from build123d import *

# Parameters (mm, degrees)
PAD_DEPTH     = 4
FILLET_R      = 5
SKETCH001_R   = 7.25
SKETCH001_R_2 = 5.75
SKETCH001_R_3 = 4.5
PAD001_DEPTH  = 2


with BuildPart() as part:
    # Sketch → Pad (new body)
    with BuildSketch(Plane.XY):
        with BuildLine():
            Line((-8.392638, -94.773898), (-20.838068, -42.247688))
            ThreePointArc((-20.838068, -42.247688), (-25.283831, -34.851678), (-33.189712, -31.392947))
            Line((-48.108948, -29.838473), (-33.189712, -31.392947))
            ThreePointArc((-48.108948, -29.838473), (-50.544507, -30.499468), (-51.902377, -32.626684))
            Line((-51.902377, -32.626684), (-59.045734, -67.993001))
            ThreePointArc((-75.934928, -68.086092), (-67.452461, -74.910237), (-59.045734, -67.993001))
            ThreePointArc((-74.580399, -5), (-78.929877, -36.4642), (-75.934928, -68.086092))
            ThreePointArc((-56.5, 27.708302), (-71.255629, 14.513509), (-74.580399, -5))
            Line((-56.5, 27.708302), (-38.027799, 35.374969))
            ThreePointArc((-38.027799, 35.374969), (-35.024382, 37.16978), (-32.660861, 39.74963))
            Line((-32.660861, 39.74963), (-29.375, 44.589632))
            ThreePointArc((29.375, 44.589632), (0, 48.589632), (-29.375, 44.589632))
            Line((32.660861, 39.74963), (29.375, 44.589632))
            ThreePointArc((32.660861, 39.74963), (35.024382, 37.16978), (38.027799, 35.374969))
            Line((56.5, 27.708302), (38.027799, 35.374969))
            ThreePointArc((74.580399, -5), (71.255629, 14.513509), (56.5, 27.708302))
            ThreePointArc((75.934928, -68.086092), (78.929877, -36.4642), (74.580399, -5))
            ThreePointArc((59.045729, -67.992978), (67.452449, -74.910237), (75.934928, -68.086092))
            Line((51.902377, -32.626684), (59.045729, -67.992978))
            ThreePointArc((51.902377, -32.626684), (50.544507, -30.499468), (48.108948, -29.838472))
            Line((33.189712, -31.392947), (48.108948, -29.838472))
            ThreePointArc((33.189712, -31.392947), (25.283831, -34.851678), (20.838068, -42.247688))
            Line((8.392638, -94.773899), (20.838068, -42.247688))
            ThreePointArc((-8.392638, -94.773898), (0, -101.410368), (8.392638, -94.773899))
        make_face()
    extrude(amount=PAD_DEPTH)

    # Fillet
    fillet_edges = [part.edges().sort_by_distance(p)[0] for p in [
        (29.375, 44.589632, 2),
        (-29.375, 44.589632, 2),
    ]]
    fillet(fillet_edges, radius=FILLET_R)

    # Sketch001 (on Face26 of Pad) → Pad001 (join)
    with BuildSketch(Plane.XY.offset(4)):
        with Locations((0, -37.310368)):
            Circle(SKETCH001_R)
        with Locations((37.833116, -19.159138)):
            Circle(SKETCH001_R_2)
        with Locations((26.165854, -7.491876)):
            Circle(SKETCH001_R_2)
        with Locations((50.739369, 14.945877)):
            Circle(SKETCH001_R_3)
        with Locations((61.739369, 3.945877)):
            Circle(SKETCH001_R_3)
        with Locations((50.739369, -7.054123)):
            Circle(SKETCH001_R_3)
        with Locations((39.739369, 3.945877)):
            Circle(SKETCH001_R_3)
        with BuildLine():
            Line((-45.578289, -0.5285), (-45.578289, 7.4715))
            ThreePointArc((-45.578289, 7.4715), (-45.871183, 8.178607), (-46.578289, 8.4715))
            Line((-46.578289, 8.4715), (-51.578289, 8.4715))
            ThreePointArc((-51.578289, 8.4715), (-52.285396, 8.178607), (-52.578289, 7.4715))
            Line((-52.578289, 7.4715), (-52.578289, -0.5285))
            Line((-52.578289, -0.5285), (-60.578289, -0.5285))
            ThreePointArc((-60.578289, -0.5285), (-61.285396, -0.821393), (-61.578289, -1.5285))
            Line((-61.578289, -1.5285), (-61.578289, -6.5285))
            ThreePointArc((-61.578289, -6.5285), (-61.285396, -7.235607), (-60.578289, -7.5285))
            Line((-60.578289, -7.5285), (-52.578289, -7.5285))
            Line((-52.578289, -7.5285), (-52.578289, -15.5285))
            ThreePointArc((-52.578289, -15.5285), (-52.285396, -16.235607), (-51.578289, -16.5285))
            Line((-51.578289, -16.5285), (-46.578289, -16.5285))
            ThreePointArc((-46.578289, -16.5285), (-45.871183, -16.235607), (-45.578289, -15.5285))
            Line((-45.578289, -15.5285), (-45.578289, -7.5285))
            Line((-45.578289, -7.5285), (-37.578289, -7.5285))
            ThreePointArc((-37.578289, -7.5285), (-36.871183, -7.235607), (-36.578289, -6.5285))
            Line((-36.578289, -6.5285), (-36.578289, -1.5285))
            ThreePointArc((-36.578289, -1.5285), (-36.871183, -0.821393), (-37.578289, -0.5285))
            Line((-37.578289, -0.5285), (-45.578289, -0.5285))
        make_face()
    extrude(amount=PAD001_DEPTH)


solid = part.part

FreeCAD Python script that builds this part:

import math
import FreeCAD as App
import Part
import Sketcher

V = App.Vector
Q = App.Units.Quantity


def edges_at(feature, points):
    """Names of the edges that pass closest to the given points."""
    edges = feature.Shape.Edges
    near = lambda p: min(range(len(edges)), key=lambda i: edges[i].distToShape(Part.Vertex(*p))[0])
    return sorted({f"Edge{near(p) + 1}" for p in points})

doc = App.newDocument("Part")
body = doc.addObject("PartDesign::Body", "Body")

# Sketch on XY plane
sketch1 = body.newObject("Sketcher::SketchObject", "Sketch")
sketch1.AttachmentSupport = (doc.getObject("XY_Plane"), [""])
sketch1.MapMode = "FlatFace"
sketch1.addGeometry(Part.LineSegment(V(-20.838068, -42.247688, 0), V(-8.392638, -94.773898, 0)), False)
sketch1.addGeometry(Part.ArcOfCircle(Part.Circle(V(0, -92.785368, 0), V(0, 0, 1), 8.625), math.radians(-166.670297), math.radians(-13.329709)), False)
sketch1.addGeometry(Part.LineSegment(V(8.392638, -94.773899, 0), V(20.838068, -42.247688, 0)), False)
sketch1.addGeometry(Part.ArcOfCircle(Part.Circle(V(34.661967, -45.523088, 0), V(0, 0, 1), 14.206633), math.radians(95.948327), math.radians(166.670294)), False)
sketch1.addGeometry(Part.LineSegment(V(33.189712, -31.392947, 0), V(48.108948, -29.838472, 0)), False)
sketch1.addGeometry(Part.ArcOfCircle(Part.Circle(V(48.471658, -33.319628, 0), V(0, 0, 1), 3.500001), math.radians(11.419087), math.radians(95.948323)), False)
sketch1.addGeometry(Part.LineSegment(V(51.902377, -32.626684, 0), V(59.045729, -67.992978, 0)), False)
sketch1.addGeometry(Part.ArcOfCircle(Part.Circle(V(67.5, -66.285368, 0), V(0, 0, 1), 8.625), math.radians(-168.580921), math.radians(-12.050842)), False)
sketch1.addGeometry(Part.ArcOfCircle(Part.Circle(V(-58.378167, -39.412357, 0), V(0, 0, 1), 137.339691), math.radians(-12.050847), math.radians(14.510878)), False)
sketch1.addGeometry(Part.ArcOfCircle(Part.Circle(V(45, 0, 0), V(0, 0, 1), 30), math.radians(-9.594068), math.radians(67.459689)), False)
sketch1.addGeometry(Part.LineSegment(V(56.5, 27.708302, 0), V(38.027799, 35.374969, 0)), False)
sketch1.addGeometry(Part.ArcOfCircle(Part.Circle(V(42.661223, 46.538837, 0), V(0, 0, 1), 12.087207), math.radians(-145.827568), math.radians(-112.540281)), False)
sketch1.addGeometry(Part.LineSegment(V(32.660861, 39.74963, 0), V(29.375, 44.589632, 0)), False)
sketch1.addGeometry(Part.ArcOfCircle(Part.Circle(V(0, -61.271696, 0), V(0, 0, 1), 109.861328), math.radians(74.491429), math.radians(105.508571)), False)
sketch1.addGeometry(Part.LineSegment(V(-29.375, 44.589632, 0), V(-32.660861, 39.74963, 0)), False)
sketch1.addGeometry(Part.ArcOfCircle(Part.Circle(V(-42.661223, 46.538837, 0), V(0, 0, 1), 12.087207), math.radians(-67.459719), math.radians(-34.172432)), False)
sketch1.addGeometry(Part.LineSegment(V(-38.027799, 35.374969, 0), V(-56.5, 27.708302, 0)), False)
sketch1.addGeometry(Part.ArcOfCircle(Part.Circle(V(-45, 0, 0), V(0, 0, 1), 30), math.radians(112.540311), math.radians(189.594068)), False)
sketch1.addGeometry(Part.ArcOfCircle(Part.Circle(V(58.378167, -39.412357, 0), V(0, 0, 1), 137.339691), math.radians(165.489122), math.radians(192.050847)), False)
sketch1.addGeometry(Part.ArcOfCircle(Part.Circle(V(-67.5, -66.285368, 0), V(0, 0, 1), 8.625), math.radians(-167.949159), math.radians(-11.419234)), False)
sketch1.addGeometry(Part.LineSegment(V(-59.045734, -67.993001, 0), V(-51.902377, -32.626684, 0)), False)
sketch1.addGeometry(Part.ArcOfCircle(Part.Circle(V(-48.47166, -33.319627, 0), V(0, 0, 1), 3.499999), math.radians(84.051646), math.radians(168.580925)), False)
sketch1.addGeometry(Part.LineSegment(V(-48.108948, -29.838473, 0), V(-33.189712, -31.392947, 0)), False)
sketch1.addGeometry(Part.ArcOfCircle(Part.Circle(V(-34.661967, -45.523088, 0), V(0, 0, 1), 14.206633), math.radians(13.329706), math.radians(84.051673)), False)
sketch1.addConstraint(Sketcher.Constraint("Coincident", 0, 2, 1, 1))
sketch1.addConstraint(Sketcher.Constraint("Coincident", 1, 2, 2, 1))
sketch1.addConstraint(Sketcher.Constraint("Coincident", 2, 2, 3, 2))
sketch1.addConstraint(Sketcher.Constraint("Coincident", 3, 1, 4, 1))
sketch1.addConstraint(Sketcher.Constraint("Coincident", 4, 2, 5, 2))
sketch1.addConstraint(Sketcher.Constraint("Coincident", 5, 1, 6, 1))
sketch1.addConstraint(Sketcher.Constraint("Coincident", 6, 2, 7, 1))
sketch1.addConstraint(Sketcher.Constraint("Coincident", 7, 2, 8, 1))
sketch1.addConstraint(Sketcher.Constraint("Coincident", 8, 2, 9, 1))
sketch1.addConstraint(Sketcher.Constraint("Coincident", 9, 2, 10, 1))
sketch1.addConstraint(Sketcher.Constraint("Coincident", 10, 2, 11, 2))
sketch1.addConstraint(Sketcher.Constraint("Coincident", 11, 1, 12, 1))
sketch1.addConstraint(Sketcher.Constraint("Coincident", 12, 2, 13, 1))
sketch1.addConstraint(Sketcher.Constraint("Coincident", 13, 2, 14, 1))
sketch1.addConstraint(Sketcher.Constraint("Coincident", 14, 2, 15, 2))
sketch1.addConstraint(Sketcher.Constraint("Coincident", 15, 1, 16, 1))
sketch1.addConstraint(Sketcher.Constraint("Coincident", 16, 2, 17, 1))
sketch1.addConstraint(Sketcher.Constraint("Coincident", 17, 2, 18, 1))
sketch1.addConstraint(Sketcher.Constraint("Coincident", 18, 2, 19, 1))
sketch1.addConstraint(Sketcher.Constraint("Coincident", 19, 2, 20, 1))
sketch1.addConstraint(Sketcher.Constraint("Coincident", 20, 2, 21, 2))
sketch1.addConstraint(Sketcher.Constraint("Coincident", 21, 1, 22, 1))
sketch1.addConstraint(Sketcher.Constraint("Coincident", 22, 2, 23, 2))
sketch1.addConstraint(Sketcher.Constraint("Coincident", 23, 1, 0, 1))
sketch1.addConstraint(Sketcher.Constraint("PointOnObject", 1, 3, -2))
sketch1.addConstraint(Sketcher.Constraint("PointOnObject", 9, 3, -1))
sketch1.addConstraint(Sketcher.Constraint("PointOnObject", 13, 3, -2))
sketch1.addConstraint(Sketcher.Constraint("PointOnObject", 17, 3, -1))
sketch1.addConstraint(Sketcher.Constraint("Radius", 9, Q("30 mm")))
sketch1.addConstraint(Sketcher.Constraint("Radius", 17, Q("30 mm")))
sketch1.addConstraint(Sketcher.Constraint("Radius", 5, Q("3.500001 mm")))
sketch1.addConstraint(Sketcher.Constraint("Radius", 21, Q("3.499999 mm")))
sketch1.addConstraint(Sketcher.Constraint("Distance", 4, Q("15 mm")))
sketch1.addConstraint(Sketcher.Constraint("Distance", 10, Q("20 mm")))
sketch1.addConstraint(Sketcher.Constraint("Distance", 16, Q("20 mm")))
sketch1.addConstraint(Sketcher.Constraint("Distance", 22, Q("15 mm")))
sketch1.addConstraint(Sketcher.Constraint("DistanceX", -1, 1, 9, 3, Q("45 mm")))
sketch1.addConstraint(Sketcher.Constraint("DistanceX", 17, 3, -1, 1, Q("45 mm")))
sketch1.addConstraint(Sketcher.Constraint("DistanceY", 8, 2, -1, 1, Q("5 mm")))
sketch1.addConstraint(Sketcher.Constraint("DistanceY", 17, 2, -1, 1, Q("5 mm")))
sketch1.addConstraint(Sketcher.Constraint("Radius", 1, Q("8.625 mm")))
sketch1.addConstraint(Sketcher.Constraint("Radius", 7, Q("8.625 mm")))
sketch1.addConstraint(Sketcher.Constraint("Radius", 19, Q("8.625 mm")))
sketch1.addConstraint(Sketcher.Constraint("DistanceX", -1, 1, 7, 3, Q("67.5 mm")))
sketch1.addConstraint(Sketcher.Constraint("DistanceX", 19, 3, -1, 1, Q("67.5 mm")))
sketch1.addConstraint(Sketcher.Constraint("DistanceX", -1, 1, 9, 2, Q("56.5 mm")))
sketch1.addConstraint(Sketcher.Constraint("DistanceX", 16, 2, -1, 1, Q("56.5 mm")))
sketch1.addConstraint(Sketcher.Constraint("DistanceY", 1, 3, 7, 3, Q("26.5 mm")))
sketch1.addConstraint(Sketcher.Constraint("DistanceY", 1, 3, 19, 3, Q("26.5 mm")))
sketch1.addConstraint(Sketcher.Constraint("Distance", 12, Q("5.85 mm")))
sketch1.addConstraint(Sketcher.Constraint("Distance", 14, Q("5.85 mm")))
sketch1.addConstraint(Sketcher.Constraint("Radius", 8, Q("137.339691 mm")))
sketch1.addConstraint(Sketcher.Constraint("Radius", 13, Q("109.861328 mm")))
sketch1.addConstraint(Sketcher.Constraint("Radius", 18, Q("137.339691 mm")))
sketch1.addConstraint(Sketcher.Constraint("DistanceY", 11, 1, 12, 2, Q("4.840002 mm")))
sketch1.addConstraint(Sketcher.Constraint("DistanceX", 13, 2, 12, 2, Q("58.75 mm")))
sketch1.addConstraint(Sketcher.Constraint("DistanceY", 11, 1, 13, 2, Q("4.840002 mm")))
sketch1.addConstraint(Sketcher.Constraint("DistanceY", 14, 2, 13, 2, Q("4.840002 mm")))
sketch1.addConstraint(Sketcher.Constraint("DistanceY", 19, 2, -1, 1, Q("67.993001 mm")))
sketch1.addConstraint(Sketcher.Constraint("Radius", 3, Q("14.206633 mm")))
sketch1.addConstraint(Sketcher.Constraint("Radius", 11, Q("12.087207 mm")))
sketch1.addConstraint(Sketcher.Constraint("Radius", 15, Q("12.087207 mm")))
sketch1.addConstraint(Sketcher.Constraint("Radius", 23, Q("14.206633 mm")))
sketch1.addConstraint(Sketcher.Constraint("DistanceY", 0, 2, -1, 1, Q("94.773898 mm")))
sketch1.addConstraint(Sketcher.Constraint("DistanceY", 1, 2, -1, 1, Q("94.773899 mm")))
sketch1.addConstraint(Sketcher.Constraint("DistanceX", -1, 1, 10, 2, Q("38.027799 mm")))
sketch1.addConstraint(Sketcher.Constraint("DistanceX", 15, 1, -1, 1, Q("38.027799 mm")))
sketch1.addConstraint(Sketcher.Constraint("DistanceX", 3, 3, 18, 3, Q("23.716201 mm")))
sketch1.addConstraint(Sketcher.Constraint("DistanceX", 8, 3, 23, 3, Q("23.716201 mm")))
sketch1.addConstraint(Sketcher.Constraint("DistanceY", 0, 2, 13, 3, Q("33.502202 mm")))
sketch1.addConstraint(Sketcher.Constraint("DistanceX", 2, 2, 3, 3, Q("13.823899 mm")))
sketch1.addConstraint(Sketcher.Constraint("DistanceX", 6, 2, 7, 2, Q("16.889199 mm")))
sketch1.addConstraint(Sketcher.Constraint("DistanceX", 23, 3, 23, 1, Q("13.823899 mm")))
sketch1.addConstraint(Sketcher.Constraint("Distance", 20, Q("36.08052 mm")))
sketch1.addConstraint(Sketcher.Constraint("DistanceX", -1, 1, 5, 3, Q("48.471658 mm")))
sketch1.addConstraint(Sketcher.Constraint("DistanceY", 7, 3, -1, 1, Q("66.285368 mm")))
sketch1.addConstraint(Sketcher.Constraint("DistanceX", 21, 3, -1, 1, Q("48.47166 mm")))
sketch1.addConstraint(Sketcher.Constraint("DistanceX", -1, 1, 3, 1, Q("33.189712 mm")))
sketch1.addConstraint(Sketcher.Constraint("DistanceY", 4, 2, -1, 1, Q("29.838472 mm")))
sketch1.addConstraint(Sketcher.Constraint("DistanceX", -1, 1, 6, 2, Q("59.045729 mm")))
sketch1.addConstraint(Sketcher.Constraint("DistanceY", 18, 2, -1, 1, Q("68.086092 mm")))
sketch1.addConstraint(Sketcher.Constraint("DistanceY", 1, 3, 3, 3, Q("47.26228 mm")))
sketch1.addConstraint(Sketcher.Constraint("DistanceY", 8, 3, 21, 3, Q("6.09273 mm")))
sketch1.addConstraint(Sketcher.Constraint("DistanceY", 23, 3, 21, 3, Q("12.203461 mm")))
sketch1.addConstraint(Sketcher.Constraint("DistanceX", 5, 3, 5, 1, Q("3.430719 mm")))
sketch1.addConstraint(Sketcher.Constraint("DistanceX", 21, 3, 21, 1, Q("0.362712 mm")))
pad1 = body.newObject("PartDesign::Pad", "Pad")
pad1.Profile = sketch1
pad1.Length = 4
doc.recompute()

fillet = body.newObject("PartDesign::Fillet", "Fillet")
fillet.Base = (pad1, edges_at(pad1, [(29.375, 44.59, 2), (-29.375, 44.59, 2)]))
fillet.Radius = 5

# Sketch on XY plane
sketch2 = body.newObject("Sketcher::SketchObject", "Sketch001")
sketch2.AttachmentSupport = (doc.getObject("XY_Plane"), [""])
sketch2.MapMode = "FlatFace"
sketch2.AttachmentOffset = App.Placement(V(0, 0, 4), App.Rotation())
sketch2.addGeometry(Part.Circle(V(0, -37.310368, 0), V(0, 0, 1), 7.25), False)
sketch2.addGeometry(Part.Circle(V(37.833116, -19.159138, 0), V(0, 0, 1), 5.75), False)
sketch2.addGeometry(Part.Circle(V(26.165854, -7.491876, 0), V(0, 0, 1), 5.75), False)
sketch2.addGeometry(Part.Circle(V(50.739369, 14.945877, 0), V(0, 0, 1), 4.5), False)
sketch2.addGeometry(Part.Circle(V(61.739369, 3.945877, 0), V(0, 0, 1), 4.5), False)
sketch2.addGeometry(Part.Circle(V(50.739369, -7.054123, 0), V(0, 0, 1), 4.5), False)
sketch2.addGeometry(Part.Circle(V(39.739369, 3.945877, 0), V(0, 0, 1), 4.5), False)
sketch2.addGeometry(Part.LineSegment(V(-45.578289, -0.5285, 0), V(-45.578289, 7.4715, 0)), False)
sketch2.addGeometry(Part.ArcOfCircle(Part.Circle(V(-46.57829, 7.471499, 0), V(0, 0, 1), 1.000001), math.radians(0.000055), math.radians(89.999945)), False)
sketch2.addGeometry(Part.LineSegment(V(-46.578289, 8.4715, 0), V(-51.578289, 8.4715, 0)), False)
sketch2.addGeometry(Part.ArcOfCircle(Part.Circle(V(-51.57829, 7.471501, 0), V(0, 0, 1), 0.999999), math.radians(89.999957), math.radians(180.000043)), False)
sketch2.addGeometry(Part.LineSegment(V(-52.578289, 7.4715, 0), V(-52.578289, -0.5285, 0)), False)
sketch2.addGeometry(Part.LineSegment(V(-52.578289, -0.5285, 0), V(-60.578289, -0.5285, 0)), False)
sketch2.addGeometry(Part.ArcOfCircle(Part.Circle(V(-60.57829, -1.528499, 0), V(0, 0, 1), 0.999999), math.radians(89.999957), math.radians(180.000043)), False)
sketch2.addGeometry(Part.LineSegment(V(-61.578289, -1.5285, 0), V(-61.578289, -6.5285, 0)), False)
sketch2.addGeometry(Part.ArcOfCircle(Part.Circle(V(-60.57829, -6.528501, 0), V(0, 0, 1), 0.999999), math.radians(179.999957), math.radians(270.000043)), False)
sketch2.addGeometry(Part.LineSegment(V(-60.578289, -7.5285, 0), V(-52.578289, -7.5285, 0)), False)
sketch2.addGeometry(Part.LineSegment(V(-52.578289, -7.5285, 0), V(-52.578289, -15.5285, 0)), False)
sketch2.addGeometry(Part.ArcOfCircle(Part.Circle(V(-51.57829, -15.528501, 0), V(0, 0, 1), 0.999999), math.radians(179.999957), math.radians(270.000043)), False)
sketch2.addGeometry(Part.LineSegment(V(-51.578289, -16.5285, 0), V(-46.578289, -16.5285, 0)), False)
sketch2.addGeometry(Part.ArcOfCircle(Part.Circle(V(-46.57829, -15.528499, 0), V(0, 0, 1), 1.000001), math.radians(-89.999945), math.radians(-0.000055)), False)
sketch2.addGeometry(Part.LineSegment(V(-45.578289, -15.5285, 0), V(-45.578289, -7.5285, 0)), False)
sketch2.addGeometry(Part.LineSegment(V(-45.578289, -7.5285, 0), V(-37.578289, -7.5285, 0)), False)
sketch2.addGeometry(Part.ArcOfCircle(Part.Circle(V(-37.57829, -6.528499, 0), V(0, 0, 1), 1.000001), math.radians(-89.999945), math.radians(-0.000055)), False)
sketch2.addGeometry(Part.LineSegment(V(-36.578289, -6.5285, 0), V(-36.578289, -1.5285, 0)), False)
sketch2.addGeometry(Part.ArcOfCircle(Part.Circle(V(-37.57829, -1.528501, 0), V(0, 0, 1), 1.000001), math.radians(0.000055), math.radians(89.999945)), False)
sketch2.addGeometry(Part.LineSegment(V(-37.578289, -0.5285, 0), V(-45.578289, -0.5285, 0)), False)
sketch2.addConstraint(Sketcher.Constraint("Tangent", 7, 2, 8, 1))
sketch2.addConstraint(Sketcher.Constraint("Tangent", 8, 2, 9, 1))
sketch2.addConstraint(Sketcher.Constraint("Tangent", 9, 2, 10, 1))
sketch2.addConstraint(Sketcher.Constraint("Tangent", 10, 2, 11, 1))
sketch2.addConstraint(Sketcher.Constraint("Coincident", 11, 2, 12, 1))
sketch2.addConstraint(Sketcher.Constraint("Tangent", 12, 2, 13, 1))
sketch2.addConstraint(Sketcher.Constraint("Tangent", 13, 2, 14, 1))
sketch2.addConstraint(Sketcher.Constraint("Tangent", 14, 2, 15, 1))
sketch2.addConstraint(Sketcher.Constraint("Tangent", 15, 2, 16, 1))
sketch2.addConstraint(Sketcher.Constraint("Coincident", 16, 2, 17, 1))
sketch2.addConstraint(Sketcher.Constraint("Tangent", 17, 2, 18, 1))
sketch2.addConstraint(Sketcher.Constraint("Tangent", 18, 2, 19, 1))
sketch2.addConstraint(Sketcher.Constraint("Tangent", 19, 2, 20, 1))
sketch2.addConstraint(Sketcher.Constraint("Tangent", 20, 2, 21, 1))
sketch2.addConstraint(Sketcher.Constraint("Coincident", 21, 2, 22, 1))
sketch2.addConstraint(Sketcher.Constraint("Tangent", 22, 2, 23, 1))
sketch2.addConstraint(Sketcher.Constraint("Tangent", 23, 2, 24, 1))
sketch2.addConstraint(Sketcher.Constraint("Tangent", 24, 2, 25, 1))
sketch2.addConstraint(Sketcher.Constraint("Tangent", 25, 2, 26, 1))
sketch2.addConstraint(Sketcher.Constraint("Coincident", 26, 2, 7, 1))
sketch2.addConstraint(Sketcher.Constraint("Vertical", 7))
sketch2.addConstraint(Sketcher.Constraint("Horizontal", 9))
sketch2.addConstraint(Sketcher.Constraint("Vertical", 11))
sketch2.addConstraint(Sketcher.Constraint("Horizontal", 12))
sketch2.addConstraint(Sketcher.Constraint("Vertical", 14))
sketch2.addConstraint(Sketcher.Constraint("Horizontal", 16))
sketch2.addConstraint(Sketcher.Constraint("Vertical", 17))
sketch2.addConstraint(Sketcher.Constraint("Horizontal", 19))
sketch2.addConstraint(Sketcher.Constraint("Vertical", 21))
sketch2.addConstraint(Sketcher.Constraint("Horizontal", 22))
sketch2.addConstraint(Sketcher.Constraint("Vertical", 24))
sketch2.addConstraint(Sketcher.Constraint("Horizontal", 26))
sketch2.addConstraint(Sketcher.Constraint("Equal", 1, 2))
sketch2.addConstraint(Sketcher.Constraint("Equal", 3, 4))
sketch2.addConstraint(Sketcher.Constraint("Equal", 4, 5))
sketch2.addConstraint(Sketcher.Constraint("Equal", 5, 6))
sketch2.addConstraint(Sketcher.Constraint("Equal", 8, 10))
sketch2.addConstraint(Sketcher.Constraint("Equal", 10, 13))
sketch2.addConstraint(Sketcher.Constraint("Equal", 13, 15))
sketch2.addConstraint(Sketcher.Constraint("Equal", 15, 18))
sketch2.addConstraint(Sketcher.Constraint("Equal", 18, 20))
sketch2.addConstraint(Sketcher.Constraint("Equal", 20, 23))
sketch2.addConstraint(Sketcher.Constraint("Equal", 23, 25))
sketch2.addConstraint(Sketcher.Constraint("PointOnObject", 0, 3, -2))
sketch2.addConstraint(Sketcher.Constraint("Horizontal", 4, 3, 6, 3))
sketch2.addConstraint(Sketcher.Constraint("Horizontal", 15, 3, 23, 3))
sketch2.addConstraint(Sketcher.Constraint("Horizontal", 13, 3, 25, 3))
sketch2.addConstraint(Sketcher.Constraint("Vertical", 3, 3, 5, 3))
sketch2.addConstraint(Sketcher.Constraint("Vertical", 10, 3, 18, 3))
sketch2.addConstraint(Sketcher.Constraint("Vertical", 8, 3, 20, 3))
sketch2.addConstraint(Sketcher.Constraint("Equal", 16, 22))
sketch2.addConstraint(Sketcher.Constraint("Equal", 26, 7))
sketch2.addConstraint(Sketcher.Constraint("Equal", 19, 14))
sketch2.addConstraint(Sketcher.Constraint("Equal", 11, 17))
sketch2.addConstraint(Sketcher.Constraint("Diameter", 3, Q("9 mm")))
sketch2.addConstraint(Sketcher.Constraint("Radius", 8, Q("1.000001 mm")))
sketch2.addConstraint(Sketcher.Constraint("Diameter", 0, Q("14.5 mm")))
sketch2.addConstraint(Sketcher.Constraint("Diameter", 1, Q("11.5 mm")))
sketch2.addConstraint(Sketcher.Constraint("DistanceX", 9, 2, 9, 1, Q("5 mm")))
sketch2.addConstraint(Sketcher.Constraint("DistanceX", 12, 2, 12, 1, Q("8 mm")))
sketch2.addConstraint(Sketcher.Constraint("DistanceX", 3, 3, 4, 3, Q("11 mm")))
sketch2.addConstraint(Sketcher.Constraint("DistanceY", 4, 3, 3, 3, Q("11 mm")))
sketch2.addConstraint(Sketcher.Constraint("DistanceY", 5, 3, 4, 3, Q("11 mm")))
sketch2.addConstraint(Sketcher.Constraint("DistanceX", 6, 3, 3, 3, Q("11 mm")))
sketch2.addConstraint(Sketcher.Constraint("DistanceY", -1, 1, 8, 3, Q("7.471499 mm")))
sketch2.addConstraint(Sketcher.Constraint("DistanceX", -1, 1, 3, 3, Q("50.739369 mm")))
sketch2.addConstraint(Sketcher.Constraint("DistanceX", 8, 3, -1, 1, Q("46.57829 mm")))
sketch2.addConstraint(Sketcher.Constraint("DistanceY", 0, 3, 1, 3, Q("18.15123 mm")))
sketch2.addConstraint(Sketcher.Constraint("DistanceX", 2, 3, 1, 3, Q("11.667262 mm")))
sketch2.addConstraint(Sketcher.Constraint("DistanceY", 1, 3, 2, 3, Q("11.667262 mm")))
sketch2.addConstraint(Sketcher.Constraint("DistanceY", 0, 3, 10, 3, Q("44.781869 mm")))
sketch2.addConstraint(Sketcher.Constraint("DistanceX", -1, 1, 1, 3, Q("37.833116 mm")))
sketch2.addConstraint(Sketcher.Constraint("DistanceY", -1, 1, 3, 3, Q("14.945877 mm")))
pad2 = body.newObject("PartDesign::Pad", "Pad001")
pad2.Profile = sketch2
pad2.Length = 2

doc.recompute()
